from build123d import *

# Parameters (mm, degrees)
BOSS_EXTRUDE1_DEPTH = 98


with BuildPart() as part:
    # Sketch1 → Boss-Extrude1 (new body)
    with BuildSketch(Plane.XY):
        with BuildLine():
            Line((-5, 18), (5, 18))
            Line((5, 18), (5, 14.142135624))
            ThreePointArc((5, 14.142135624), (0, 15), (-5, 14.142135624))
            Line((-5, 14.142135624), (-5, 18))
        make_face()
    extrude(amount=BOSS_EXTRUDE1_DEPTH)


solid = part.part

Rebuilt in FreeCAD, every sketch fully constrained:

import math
import FreeCAD as App
import Part
import Sketcher

V = App.Vector

doc = App.newDocument("Part")
body = doc.addObject("PartDesign::Body", "Body")

# Sketch on XY plane
sketch1 = body.newObject("Sketcher::SketchObject", "Sketch")
sketch1.AttachmentSupport = (doc.getObject("XY_Plane"), [""])
sketch1.MapMode = "FlatFace"
sketch1.addGeometry([
    Part.LineSegment(V(5, 18, 0), V(-5, 18, 0)),
    Part.LineSegment(V(-5, 18, 0), V(-5, 14.1, 0)),
    Part.ArcOfCircle(Part.Circle(V(0, 0, 0), V(0, 0, 1), 15), math.radians(71), math.radians(109)),
    Part.LineSegment(V(5, 14.1, 0), V(5, 18, 0)),
], False)
sketch1.addConstraint([
    Sketcher.Constraint("Coincident", 0, 2, 1, 1),
    Sketcher.Constraint("Coincident", 1, 2, 2, 2),
    Sketcher.Constraint("Coincident", 2, 1, 3, 1),
    Sketcher.Constraint("Coincident", 3, 2, 0, 1),
    Sketcher.Constraint("Horizontal", 0),
    Sketcher.Constraint("Vertical", 1),
    Sketcher.Constraint("Vertical", 3),
    Sketcher.Constraint("Coincident", 2, 3, -1, 1),
    Sketcher.Constraint("Horizontal", 1, 2, 2, 1),
    Sketcher.Constraint("Radius", 2, 15.0),
    Sketcher.Constraint("DistanceX", 0, 2, 0, 1, 10.0),
    Sketcher.Constraint("DistanceY", -1, 1, 0, 2, 18.0),
])
pad1 = body.newObject("PartDesign::Pad", "Pad")
pad1.Profile = sketch1
pad1.Length = 98

doc.recompute()
